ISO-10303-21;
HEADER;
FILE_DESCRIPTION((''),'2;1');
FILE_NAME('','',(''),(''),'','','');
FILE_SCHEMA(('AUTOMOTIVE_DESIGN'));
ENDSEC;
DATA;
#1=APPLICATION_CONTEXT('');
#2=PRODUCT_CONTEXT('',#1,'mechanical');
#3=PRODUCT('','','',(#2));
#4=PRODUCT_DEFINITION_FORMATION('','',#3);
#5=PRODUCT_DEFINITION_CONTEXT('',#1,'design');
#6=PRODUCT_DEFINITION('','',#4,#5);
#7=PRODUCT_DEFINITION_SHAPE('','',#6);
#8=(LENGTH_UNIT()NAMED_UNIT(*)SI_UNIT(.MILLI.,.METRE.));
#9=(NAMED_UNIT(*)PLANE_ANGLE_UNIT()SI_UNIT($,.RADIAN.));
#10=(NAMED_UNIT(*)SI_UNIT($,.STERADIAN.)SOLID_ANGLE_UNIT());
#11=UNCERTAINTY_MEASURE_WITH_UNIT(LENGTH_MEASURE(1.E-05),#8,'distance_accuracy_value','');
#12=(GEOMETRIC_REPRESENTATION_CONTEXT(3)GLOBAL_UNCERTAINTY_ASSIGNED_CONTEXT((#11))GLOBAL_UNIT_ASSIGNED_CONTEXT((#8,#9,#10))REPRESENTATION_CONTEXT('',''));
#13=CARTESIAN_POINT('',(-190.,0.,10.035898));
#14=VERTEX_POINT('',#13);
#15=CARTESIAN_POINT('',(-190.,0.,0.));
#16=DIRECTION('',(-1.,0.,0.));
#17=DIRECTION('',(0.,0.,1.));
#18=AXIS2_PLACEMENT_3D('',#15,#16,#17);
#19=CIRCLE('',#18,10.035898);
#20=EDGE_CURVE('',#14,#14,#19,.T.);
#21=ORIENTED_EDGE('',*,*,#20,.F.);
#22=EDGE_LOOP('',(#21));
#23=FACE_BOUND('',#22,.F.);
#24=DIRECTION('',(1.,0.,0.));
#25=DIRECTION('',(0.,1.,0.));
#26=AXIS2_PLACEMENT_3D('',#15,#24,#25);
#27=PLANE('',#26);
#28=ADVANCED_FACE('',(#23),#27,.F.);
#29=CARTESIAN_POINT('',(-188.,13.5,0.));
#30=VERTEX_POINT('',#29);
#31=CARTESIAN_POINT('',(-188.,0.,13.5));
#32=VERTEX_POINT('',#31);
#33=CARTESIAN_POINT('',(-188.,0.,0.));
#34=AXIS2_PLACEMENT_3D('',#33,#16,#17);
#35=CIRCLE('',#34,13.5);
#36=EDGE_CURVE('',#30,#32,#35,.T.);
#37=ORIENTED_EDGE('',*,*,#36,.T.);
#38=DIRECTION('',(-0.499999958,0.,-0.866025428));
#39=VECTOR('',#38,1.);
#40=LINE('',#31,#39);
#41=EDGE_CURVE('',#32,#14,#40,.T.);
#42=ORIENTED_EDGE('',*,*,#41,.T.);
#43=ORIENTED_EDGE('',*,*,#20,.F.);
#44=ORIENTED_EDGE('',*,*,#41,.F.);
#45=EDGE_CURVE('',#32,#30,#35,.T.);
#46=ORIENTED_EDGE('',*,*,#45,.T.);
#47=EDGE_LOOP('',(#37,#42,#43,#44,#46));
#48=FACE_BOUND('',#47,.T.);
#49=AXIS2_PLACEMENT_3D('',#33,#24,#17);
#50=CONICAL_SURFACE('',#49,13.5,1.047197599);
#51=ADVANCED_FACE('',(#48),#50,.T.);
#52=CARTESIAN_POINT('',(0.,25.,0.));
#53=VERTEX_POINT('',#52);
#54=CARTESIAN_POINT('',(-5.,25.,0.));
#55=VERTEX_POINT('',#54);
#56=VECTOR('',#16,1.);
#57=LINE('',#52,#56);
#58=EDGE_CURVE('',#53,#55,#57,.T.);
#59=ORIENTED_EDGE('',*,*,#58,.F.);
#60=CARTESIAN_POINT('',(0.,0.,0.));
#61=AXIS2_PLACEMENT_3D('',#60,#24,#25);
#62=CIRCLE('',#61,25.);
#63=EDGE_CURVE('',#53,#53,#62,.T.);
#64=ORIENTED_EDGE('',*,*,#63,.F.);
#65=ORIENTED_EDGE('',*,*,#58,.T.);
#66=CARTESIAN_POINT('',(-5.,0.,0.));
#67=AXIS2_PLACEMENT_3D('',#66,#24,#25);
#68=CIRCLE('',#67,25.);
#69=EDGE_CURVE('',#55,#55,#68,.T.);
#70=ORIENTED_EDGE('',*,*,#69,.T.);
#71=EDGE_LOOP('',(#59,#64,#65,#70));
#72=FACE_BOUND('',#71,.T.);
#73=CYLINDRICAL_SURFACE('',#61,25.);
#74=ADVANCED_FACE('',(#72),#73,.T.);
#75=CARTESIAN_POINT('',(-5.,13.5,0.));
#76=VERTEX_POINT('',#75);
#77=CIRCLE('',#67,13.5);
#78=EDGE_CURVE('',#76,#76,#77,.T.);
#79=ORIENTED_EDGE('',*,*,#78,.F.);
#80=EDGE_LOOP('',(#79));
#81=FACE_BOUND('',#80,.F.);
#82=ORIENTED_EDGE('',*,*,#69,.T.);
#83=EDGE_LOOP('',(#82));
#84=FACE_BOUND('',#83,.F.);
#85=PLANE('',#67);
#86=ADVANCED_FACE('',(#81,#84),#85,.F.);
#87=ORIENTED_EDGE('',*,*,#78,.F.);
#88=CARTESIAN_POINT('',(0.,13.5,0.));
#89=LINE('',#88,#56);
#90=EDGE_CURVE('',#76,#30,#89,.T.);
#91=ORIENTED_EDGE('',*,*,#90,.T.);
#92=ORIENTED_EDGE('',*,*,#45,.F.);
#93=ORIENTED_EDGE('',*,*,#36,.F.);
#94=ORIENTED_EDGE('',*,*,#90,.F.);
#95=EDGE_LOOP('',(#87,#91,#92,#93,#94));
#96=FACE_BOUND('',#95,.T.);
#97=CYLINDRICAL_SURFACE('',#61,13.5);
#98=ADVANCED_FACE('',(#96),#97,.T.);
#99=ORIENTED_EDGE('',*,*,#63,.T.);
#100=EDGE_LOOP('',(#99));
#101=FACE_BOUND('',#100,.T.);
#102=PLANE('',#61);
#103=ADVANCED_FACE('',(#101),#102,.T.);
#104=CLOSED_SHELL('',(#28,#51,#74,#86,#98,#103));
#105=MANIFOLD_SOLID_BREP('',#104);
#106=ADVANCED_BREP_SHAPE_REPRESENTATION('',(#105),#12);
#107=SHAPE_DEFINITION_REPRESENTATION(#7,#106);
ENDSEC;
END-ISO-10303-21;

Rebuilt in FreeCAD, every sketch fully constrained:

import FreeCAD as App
import Part
import Sketcher
Q = App.Units.Quantity

doc = App.newDocument("Part")
params = doc.addObject("Spreadsheet::Sheet", "Params")
for row, (alias, value) in enumerate([
    ("sketch1_diameter", "27 mm"),
    ("pad1_length", "190 mm"),
    ("sketch2_diameter", "50 mm"),
    ("sketch2_diameter2", "27 mm"),
    ("pad2_length", "5 mm"),
    ("sketch3_width", "2 mm"),
    ("groove_angle", "360 deg"),
], start=1):
    params.set(f"A{row}", alias)
    params.set(f"B{row}", "=" + value)
    params.setAlias(f"B{row}", alias)

body = doc.addObject("PartDesign::Body", "Body")

sketch1 = doc.addObject("Sketcher::SketchObject", "Sketch")
body.addObject(sketch1)
sketch1.AttachmentSupport = (doc.YZ_Plane, [""])
sketch1.MapMode = "FlatFace"
sketch1.addGeometry(Part.Circle(App.Vector(0, 0, 0), App.Vector(0, 0, 1), 14), False)
sketch1.addConstraint([
    Sketcher.Constraint("Coincident", 0, 3, -1, 1),
    Sketcher.Constraint("Diameter", 0, 27.0),
])
sketch1.setExpression("Constraints[1]", "Params.sketch1_diameter")
pad1 = doc.addObject("PartDesign::Pad", "Pad")
body.addObject(pad1)
pad1.Profile = sketch1
pad1.setExpression("Length", "Params.pad1_length")
pad1.Reversed = True

sketch2 = doc.addObject("Sketcher::SketchObject", "Sketch001")
body.addObject(sketch2)
sketch2.AttachmentSupport = (doc.YZ_Plane, [""])
sketch2.MapMode = "FlatFace"
sketch2.addGeometry([
    Part.Circle(App.Vector(0, 0, 0), App.Vector(0, 0, 1), 25),
    Part.Circle(App.Vector(0, 0, 0), App.Vector(0, 0, 1), 14),
], False)
sketch2.addConstraint([
    Sketcher.Constraint("Coincident", 0, 3, -1, 1),
    Sketcher.Constraint("Coincident", 1, 3, -1, 1),
    Sketcher.Constraint("Diameter", 0, 50.0),
    Sketcher.Constraint("Diameter", 1, 27.0),
])
sketch2.setExpression("Constraints[2]", "Params.sketch2_diameter")
sketch2.setExpression("Constraints[3]", "Params.sketch2_diameter2")
pad2 = doc.addObject("PartDesign::Pad", "Pad001")
body.addObject(pad2)
pad2.Profile = sketch2
pad2.setExpression("Length", "Params.pad2_length")
pad2.Reversed = True

sketch3 = doc.addObject("Sketcher::SketchObject", "Sketch002")
body.addObject(sketch3)
sketch3.AttachmentSupport = (doc.XZ_Plane, [""])
sketch3.MapMode = "FlatFace"
sketch3.addGeometry([
    Part.LineSegment(App.Vector(-190, 13.5, 0), App.Vector(-188, 13.5, 0)),
    Part.LineSegment(App.Vector(-188, 13.5, 0), App.Vector(-190, 10, 0)),
    Part.LineSegment(App.Vector(-190, 10, 0), App.Vector(-190, 13.5, 0)),
], False)
sketch3.addConstraint([
    Sketcher.Constraint("Coincident", 0, 2, 1, 1),
    Sketcher.Constraint("Coincident", 1, 2, 2, 1),
    Sketcher.Constraint("Coincident", 2, 2, 0, 1),
    Sketcher.Constraint("Horizontal", 0),
    Sketcher.Constraint("Vertical", 2),
    Sketcher.Constraint("DistanceX", 0, 1, 0, 2, 2.0),
    Sketcher.Constraint("Angle", 1, Q("-119.999997 deg")),
    Sketcher.Constraint("DistanceX", 0, 2, -1, 1, 188.0),
    Sketcher.Constraint("DistanceY", -1, 1, 0, 2, 13.5),
])
sketch3.setExpression("Constraints[5]", "Params.sketch3_width")
groove = doc.addObject("PartDesign::Groove", "Groove")
body.addObject(groove)
groove.Profile = sketch3
groove.ReferenceAxis = (sketch3, ["H_Axis"])
groove.setExpression("Angle", "Params.groove_angle")

doc.recompute()
